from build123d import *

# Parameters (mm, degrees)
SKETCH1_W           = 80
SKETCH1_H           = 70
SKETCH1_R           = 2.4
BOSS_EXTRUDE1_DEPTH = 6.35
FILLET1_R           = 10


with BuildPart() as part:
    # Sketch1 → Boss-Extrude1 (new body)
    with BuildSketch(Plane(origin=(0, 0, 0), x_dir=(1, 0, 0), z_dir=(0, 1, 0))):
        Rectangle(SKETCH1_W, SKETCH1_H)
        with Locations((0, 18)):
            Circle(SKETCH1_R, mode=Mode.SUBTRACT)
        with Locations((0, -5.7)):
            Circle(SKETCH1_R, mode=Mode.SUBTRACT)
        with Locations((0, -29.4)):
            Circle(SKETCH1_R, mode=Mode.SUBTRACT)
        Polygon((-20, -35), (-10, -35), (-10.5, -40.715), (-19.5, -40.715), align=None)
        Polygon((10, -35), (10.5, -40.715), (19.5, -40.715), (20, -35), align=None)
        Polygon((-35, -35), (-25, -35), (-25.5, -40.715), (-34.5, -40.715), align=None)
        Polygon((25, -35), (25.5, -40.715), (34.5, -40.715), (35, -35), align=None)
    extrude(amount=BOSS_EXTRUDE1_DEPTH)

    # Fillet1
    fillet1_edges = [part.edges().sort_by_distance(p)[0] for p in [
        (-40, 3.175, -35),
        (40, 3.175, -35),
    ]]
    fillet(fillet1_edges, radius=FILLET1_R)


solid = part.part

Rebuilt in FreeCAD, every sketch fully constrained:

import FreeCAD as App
import Part
import Sketcher


def edges_at(feature, points):
    """Names of the edges that pass closest to the given points."""
    edges = feature.Shape.Edges
    near = lambda p: min(range(len(edges)), key=lambda i: edges[i].distToShape(Part.Vertex(*p))[0])
    return sorted({f"Edge{near(p) + 1}" for p in points})

doc = App.newDocument("Part")
body = doc.addObject("PartDesign::Body", "Body")

sketch1 = body.newObject("Sketcher::SketchObject", "Sketch")
sketch1.AttachmentSupport = (doc.getObject("XZ_Plane"), [""])
sketch1.MapMode = "FlatFace"
sketch1.addGeometry(Part.LineSegment(App.Vector(-40, -35, 0), App.Vector(-40, 35, 0)), False)
sketch1.addGeometry(Part.LineSegment(App.Vector(-40, 35, 0), App.Vector(-35, 35, 0)), False)
sketch1.addGeometry(Part.LineSegment(App.Vector(-35, 35, 0), App.Vector(-34.5, 40.7, 0)), False)
sketch1.addGeometry(Part.LineSegment(App.Vector(-34.5, 40.7, 0), App.Vector(-25.5, 40.7, 0)), False)
sketch1.addGeometry(Part.LineSegment(App.Vector(-25.5, 40.7, 0), App.Vector(-25, 35, 0)), False)
sketch1.addGeometry(Part.LineSegment(App.Vector(-25, 35, 0), App.Vector(-20, 35, 0)), False)
sketch1.addGeometry(Part.LineSegment(App.Vector(-20, 35, 0), App.Vector(-19.5, 40.7, 0)), False)
sketch1.addGeometry(Part.LineSegment(App.Vector(-19.5, 40.7, 0), App.Vector(-10.5, 40.7, 0)), False)
sketch1.addGeometry(Part.LineSegment(App.Vector(-10.5, 40.7, 0), App.Vector(-10, 35, 0)), False)
sketch1.addGeometry(Part.LineSegment(App.Vector(-10, 35, 0), App.Vector(10, 35, 0)), False)
sketch1.addGeometry(Part.LineSegment(App.Vector(10, 35, 0), App.Vector(10.5, 40.7, 0)), False)
sketch1.addGeometry(Part.LineSegment(App.Vector(10.5, 40.7, 0), App.Vector(19.5, 40.7, 0)), False)
sketch1.addGeometry(Part.LineSegment(App.Vector(19.5, 40.7, 0), App.Vector(20, 35, 0)), False)
sketch1.addGeometry(Part.LineSegment(App.Vector(20, 35, 0), App.Vector(25, 35, 0)), False)
sketch1.addGeometry(Part.LineSegment(App.Vector(25, 35, 0), App.Vector(25.5, 40.7, 0)), False)
sketch1.addGeometry(Part.LineSegment(App.Vector(25.5, 40.7, 0), App.Vector(34.5, 40.7, 0)), False)
sketch1.addGeometry(Part.LineSegment(App.Vector(34.5, 40.7, 0), App.Vector(35, 35, 0)), False)
sketch1.addGeometry(Part.LineSegment(App.Vector(35, 35, 0), App.Vector(40, 35, 0)), False)
sketch1.addGeometry(Part.LineSegment(App.Vector(40, 35, 0), App.Vector(40, -35, 0)), False)
sketch1.addGeometry(Part.LineSegment(App.Vector(40, -35, 0), App.Vector(-40, -35, 0)), False)
sketch1.addGeometry(Part.Circle(App.Vector(0, 29.4, 0), App.Vector(0, 0, 1), 2.4), False)
sketch1.addGeometry(Part.Circle(App.Vector(0, 5.7, 0), App.Vector(0, 0, 1), 2.4), False)
sketch1.addGeometry(Part.Circle(App.Vector(0, -18, 0), App.Vector(0, 0, 1), 2.4), False)
sketch1.addConstraint(Sketcher.Constraint("Coincident", 0, 2, 1, 1))
sketch1.addConstraint(Sketcher.Constraint("Coincident", 1, 2, 2, 1))
sketch1.addConstraint(Sketcher.Constraint("Coincident", 2, 2, 3, 1))
sketch1.addConstraint(Sketcher.Constraint("Coincident", 3, 2, 4, 1))
sketch1.addConstraint(Sketcher.Constraint("Coincident", 4, 2, 5, 1))
sketch1.addConstraint(Sketcher.Constraint("Coincident", 5, 2, 6, 1))
sketch1.addConstraint(Sketcher.Constraint("Coincident", 6, 2, 7, 1))
sketch1.addConstraint(Sketcher.Constraint("Coincident", 7, 2, 8, 1))
sketch1.addConstraint(Sketcher.Constraint("Coincident", 8, 2, 9, 1))
sketch1.addConstraint(Sketcher.Constraint("Coincident", 9, 2, 10, 1))
sketch1.addConstraint(Sketcher.Constraint("Coincident", 10, 2, 11, 1))
sketch1.addConstraint(Sketcher.Constraint("Coincident", 11, 2, 12, 1))
sketch1.addConstraint(Sketcher.Constraint("Coincident", 12, 2, 13, 1))
sketch1.addConstraint(Sketcher.Constraint("Coincident", 13, 2, 14, 1))
sketch1.addConstraint(Sketcher.Constraint("Coincident", 14, 2, 15, 1))
sketch1.addConstraint(Sketcher.Constraint("Coincident", 15, 2, 16, 1))
sketch1.addConstraint(Sketcher.Constraint("Coincident", 16, 2, 17, 1))
sketch1.addConstraint(Sketcher.Constraint("Coincident", 17, 2, 18, 1))
sketch1.addConstraint(Sketcher.Constraint("Coincident", 18, 2, 19, 1))
sketch1.addConstraint(Sketcher.Constraint("Coincident", 19, 2, 0, 1))
sketch1.addConstraint(Sketcher.Constraint("Vertical", 0))
sketch1.addConstraint(Sketcher.Constraint("Horizontal", 1))
sketch1.addConstraint(Sketcher.Constraint("Horizontal", 3))
sketch1.addConstraint(Sketcher.Constraint("Horizontal", 5))
sketch1.addConstraint(Sketcher.Constraint("Horizontal", 7))
sketch1.addConstraint(Sketcher.Constraint("Horizontal", 9))
sketch1.addConstraint(Sketcher.Constraint("Horizontal", 11))
sketch1.addConstraint(Sketcher.Constraint("Horizontal", 13))
sketch1.addConstraint(Sketcher.Constraint("Horizontal", 15))
sketch1.addConstraint(Sketcher.Constraint("Horizontal", 17))
sketch1.addConstraint(Sketcher.Constraint("Vertical", 18))
sketch1.addConstraint(Sketcher.Constraint("Horizontal", 19))
sketch1.addConstraint(Sketcher.Constraint("Equal", 20, 21))
sketch1.addConstraint(Sketcher.Constraint("Equal", 21, 22))
sketch1.addConstraint(Sketcher.Constraint("Symmetric", 0, 2, 18, 2, -1, 1))
sketch1.addConstraint(Sketcher.Constraint("Symmetric", 7, 2, 10, 2, -2))
sketch1.addConstraint(Sketcher.Constraint("Symmetric", 5, 2, 12, 2, -2))
sketch1.addConstraint(Sketcher.Constraint("Symmetric", 3, 2, 14, 2, -2))
sketch1.addConstraint(Sketcher.Constraint("Symmetric", 1, 2, 16, 2, -2))
sketch1.addConstraint(Sketcher.Constraint("PointOnObject", 20, 3, -2))
sketch1.addConstraint(Sketcher.Constraint("PointOnObject", 21, 3, -2))
sketch1.addConstraint(Sketcher.Constraint("PointOnObject", 22, 3, -2))
sketch1.addConstraint(Sketcher.Constraint("Parallel", 2, 6))
sketch1.addConstraint(Sketcher.Constraint("Parallel", 4, 8))
sketch1.addConstraint(Sketcher.Constraint("Parallel", 6, 10))
sketch1.addConstraint(Sketcher.Constraint("Parallel", 8, 12))
sketch1.addConstraint(Sketcher.Constraint("Parallel", 10, 14))
sketch1.addConstraint(Sketcher.Constraint("Parallel", 12, 16))
sketch1.addConstraint(Sketcher.Constraint("Horizontal", 1, 2, 4, 2))
sketch1.addConstraint(Sketcher.Constraint("Horizontal", 3, 2, 6, 2))
sketch1.addConstraint(Sketcher.Constraint("Horizontal", 5, 2, 8, 2))
sketch1.addConstraint(Sketcher.Constraint("Equal", 1, 5))
sketch1.addConstraint(Sketcher.Constraint("Equal", 3, 7))
sketch1.addConstraint(Sketcher.Constraint("Equal", 7, 11))
sketch1.addConstraint(Sketcher.Constraint("Diameter", 20, 4.8))
sketch1.addConstraint(Sketcher.Constraint("DistanceX", 1, 1, 1, 2, 5.0))
sketch1.addConstraint(Sketcher.Constraint("DistanceX", 3, 1, 3, 2, 9.0))
sketch1.addConstraint(Sketcher.Constraint("DistanceX", 9, 1, 9, 2, 20.0))
sketch1.addConstraint(Sketcher.Constraint("DistanceX", 19, 2, 19, 1, 80.0))
sketch1.addConstraint(Sketcher.Constraint("DistanceY", 0, 1, 0, 2, 70.0))
sketch1.addConstraint(Sketcher.Constraint("DistanceY", 22, 3, -1, 1, 18.0))
sketch1.addConstraint(Sketcher.Constraint("DistanceY", -1, 1, 20, 3, 29.4))
sketch1.addConstraint(Sketcher.Constraint("DistanceY", -1, 1, 21, 3, 5.7))
sketch1.addConstraint(Sketcher.Constraint("DistanceY", -1, 1, 2, 2, 40.715))
pad1 = body.newObject("PartDesign::Pad", "Pad")
pad1.Profile = sketch1
pad1.Length = 6.35
pad1.Reversed = True
doc.recompute()

fillet = body.newObject("PartDesign::Fillet", "Fillet")
fillet.Base = (pad1, edges_at(pad1, [(-40, 3.175, -35), (40, 3.175, -35)]))
fillet.Radius = 10

doc.recompute()
